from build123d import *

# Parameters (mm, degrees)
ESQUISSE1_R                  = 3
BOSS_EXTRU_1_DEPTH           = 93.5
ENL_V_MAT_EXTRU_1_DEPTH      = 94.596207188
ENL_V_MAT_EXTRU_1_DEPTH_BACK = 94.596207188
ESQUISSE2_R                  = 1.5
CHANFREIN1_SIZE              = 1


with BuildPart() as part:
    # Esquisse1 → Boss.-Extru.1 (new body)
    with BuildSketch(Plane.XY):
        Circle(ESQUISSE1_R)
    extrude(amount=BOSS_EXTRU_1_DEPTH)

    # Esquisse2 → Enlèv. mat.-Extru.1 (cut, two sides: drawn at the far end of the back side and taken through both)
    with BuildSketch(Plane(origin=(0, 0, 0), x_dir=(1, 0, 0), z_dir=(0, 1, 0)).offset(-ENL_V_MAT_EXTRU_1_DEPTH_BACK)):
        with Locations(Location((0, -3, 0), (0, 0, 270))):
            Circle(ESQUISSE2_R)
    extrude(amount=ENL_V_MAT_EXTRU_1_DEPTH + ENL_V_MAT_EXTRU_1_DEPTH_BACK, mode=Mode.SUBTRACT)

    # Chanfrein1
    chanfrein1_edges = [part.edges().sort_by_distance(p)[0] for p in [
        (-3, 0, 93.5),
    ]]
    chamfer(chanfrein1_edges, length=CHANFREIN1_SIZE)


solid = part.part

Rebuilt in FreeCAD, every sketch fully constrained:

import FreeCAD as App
import Part
import Sketcher

V = App.Vector


def edges_at(feature, points):
    """Names of the edges that pass closest to the given points."""
    edges = feature.Shape.Edges
    near = lambda p: min(range(len(edges)), key=lambda i: edges[i].distToShape(Part.Vertex(*p))[0])
    return sorted({f"Edge{near(p) + 1}" for p in points})

doc = App.newDocument("Part")
body = doc.addObject("PartDesign::Body", "Body")

sketch1 = body.newObject("Sketcher::SketchObject", "Sketch")
sketch1.AttachmentSupport = (doc.getObject("XY_Plane"), [""])
sketch1.MapMode = "FlatFace"
sketch1.addGeometry(Part.Circle(V(0, 0, 0), V(0, 0, 1), 3), False)
sketch1.addConstraint([
    Sketcher.Constraint("Coincident", 0, 3, -1, 1),
    Sketcher.Constraint("Diameter", 0, 6.0),
])
pad1 = body.newObject("PartDesign::Pad", "Pad")
pad1.Profile = sketch1
pad1.Length = 93.5

sketch2 = body.newObject("Sketcher::SketchObject", "Sketch001")
sketch2.AttachmentSupport = (doc.getObject("XZ_Plane"), [""])
sketch2.MapMode = "FlatFace"
sketch2.addGeometry(Part.Circle(V(0, 3, 0), V(0, 0, 1), 1.5), False)
sketch2.addConstraint([
    Sketcher.Constraint("PointOnObject", 0, 3, -2),
    Sketcher.Constraint("Diameter", 0, 3.0),
    Sketcher.Constraint("DistanceY", -1, 1, 0, 3, 3.0),
])
pocket1 = body.newObject("PartDesign::Pocket", "Pocket")
pocket1.Profile = sketch2
pocket1.Type = "ThroughAll"
pocket1.Midplane = True
doc.recompute()

chamfer = body.newObject("PartDesign::Chamfer", "Chamfer")
chamfer.Base = (pocket1, edges_at(pocket1, [(-3, 0, 93.5)]))
chamfer.Size = 1

doc.recompute()
